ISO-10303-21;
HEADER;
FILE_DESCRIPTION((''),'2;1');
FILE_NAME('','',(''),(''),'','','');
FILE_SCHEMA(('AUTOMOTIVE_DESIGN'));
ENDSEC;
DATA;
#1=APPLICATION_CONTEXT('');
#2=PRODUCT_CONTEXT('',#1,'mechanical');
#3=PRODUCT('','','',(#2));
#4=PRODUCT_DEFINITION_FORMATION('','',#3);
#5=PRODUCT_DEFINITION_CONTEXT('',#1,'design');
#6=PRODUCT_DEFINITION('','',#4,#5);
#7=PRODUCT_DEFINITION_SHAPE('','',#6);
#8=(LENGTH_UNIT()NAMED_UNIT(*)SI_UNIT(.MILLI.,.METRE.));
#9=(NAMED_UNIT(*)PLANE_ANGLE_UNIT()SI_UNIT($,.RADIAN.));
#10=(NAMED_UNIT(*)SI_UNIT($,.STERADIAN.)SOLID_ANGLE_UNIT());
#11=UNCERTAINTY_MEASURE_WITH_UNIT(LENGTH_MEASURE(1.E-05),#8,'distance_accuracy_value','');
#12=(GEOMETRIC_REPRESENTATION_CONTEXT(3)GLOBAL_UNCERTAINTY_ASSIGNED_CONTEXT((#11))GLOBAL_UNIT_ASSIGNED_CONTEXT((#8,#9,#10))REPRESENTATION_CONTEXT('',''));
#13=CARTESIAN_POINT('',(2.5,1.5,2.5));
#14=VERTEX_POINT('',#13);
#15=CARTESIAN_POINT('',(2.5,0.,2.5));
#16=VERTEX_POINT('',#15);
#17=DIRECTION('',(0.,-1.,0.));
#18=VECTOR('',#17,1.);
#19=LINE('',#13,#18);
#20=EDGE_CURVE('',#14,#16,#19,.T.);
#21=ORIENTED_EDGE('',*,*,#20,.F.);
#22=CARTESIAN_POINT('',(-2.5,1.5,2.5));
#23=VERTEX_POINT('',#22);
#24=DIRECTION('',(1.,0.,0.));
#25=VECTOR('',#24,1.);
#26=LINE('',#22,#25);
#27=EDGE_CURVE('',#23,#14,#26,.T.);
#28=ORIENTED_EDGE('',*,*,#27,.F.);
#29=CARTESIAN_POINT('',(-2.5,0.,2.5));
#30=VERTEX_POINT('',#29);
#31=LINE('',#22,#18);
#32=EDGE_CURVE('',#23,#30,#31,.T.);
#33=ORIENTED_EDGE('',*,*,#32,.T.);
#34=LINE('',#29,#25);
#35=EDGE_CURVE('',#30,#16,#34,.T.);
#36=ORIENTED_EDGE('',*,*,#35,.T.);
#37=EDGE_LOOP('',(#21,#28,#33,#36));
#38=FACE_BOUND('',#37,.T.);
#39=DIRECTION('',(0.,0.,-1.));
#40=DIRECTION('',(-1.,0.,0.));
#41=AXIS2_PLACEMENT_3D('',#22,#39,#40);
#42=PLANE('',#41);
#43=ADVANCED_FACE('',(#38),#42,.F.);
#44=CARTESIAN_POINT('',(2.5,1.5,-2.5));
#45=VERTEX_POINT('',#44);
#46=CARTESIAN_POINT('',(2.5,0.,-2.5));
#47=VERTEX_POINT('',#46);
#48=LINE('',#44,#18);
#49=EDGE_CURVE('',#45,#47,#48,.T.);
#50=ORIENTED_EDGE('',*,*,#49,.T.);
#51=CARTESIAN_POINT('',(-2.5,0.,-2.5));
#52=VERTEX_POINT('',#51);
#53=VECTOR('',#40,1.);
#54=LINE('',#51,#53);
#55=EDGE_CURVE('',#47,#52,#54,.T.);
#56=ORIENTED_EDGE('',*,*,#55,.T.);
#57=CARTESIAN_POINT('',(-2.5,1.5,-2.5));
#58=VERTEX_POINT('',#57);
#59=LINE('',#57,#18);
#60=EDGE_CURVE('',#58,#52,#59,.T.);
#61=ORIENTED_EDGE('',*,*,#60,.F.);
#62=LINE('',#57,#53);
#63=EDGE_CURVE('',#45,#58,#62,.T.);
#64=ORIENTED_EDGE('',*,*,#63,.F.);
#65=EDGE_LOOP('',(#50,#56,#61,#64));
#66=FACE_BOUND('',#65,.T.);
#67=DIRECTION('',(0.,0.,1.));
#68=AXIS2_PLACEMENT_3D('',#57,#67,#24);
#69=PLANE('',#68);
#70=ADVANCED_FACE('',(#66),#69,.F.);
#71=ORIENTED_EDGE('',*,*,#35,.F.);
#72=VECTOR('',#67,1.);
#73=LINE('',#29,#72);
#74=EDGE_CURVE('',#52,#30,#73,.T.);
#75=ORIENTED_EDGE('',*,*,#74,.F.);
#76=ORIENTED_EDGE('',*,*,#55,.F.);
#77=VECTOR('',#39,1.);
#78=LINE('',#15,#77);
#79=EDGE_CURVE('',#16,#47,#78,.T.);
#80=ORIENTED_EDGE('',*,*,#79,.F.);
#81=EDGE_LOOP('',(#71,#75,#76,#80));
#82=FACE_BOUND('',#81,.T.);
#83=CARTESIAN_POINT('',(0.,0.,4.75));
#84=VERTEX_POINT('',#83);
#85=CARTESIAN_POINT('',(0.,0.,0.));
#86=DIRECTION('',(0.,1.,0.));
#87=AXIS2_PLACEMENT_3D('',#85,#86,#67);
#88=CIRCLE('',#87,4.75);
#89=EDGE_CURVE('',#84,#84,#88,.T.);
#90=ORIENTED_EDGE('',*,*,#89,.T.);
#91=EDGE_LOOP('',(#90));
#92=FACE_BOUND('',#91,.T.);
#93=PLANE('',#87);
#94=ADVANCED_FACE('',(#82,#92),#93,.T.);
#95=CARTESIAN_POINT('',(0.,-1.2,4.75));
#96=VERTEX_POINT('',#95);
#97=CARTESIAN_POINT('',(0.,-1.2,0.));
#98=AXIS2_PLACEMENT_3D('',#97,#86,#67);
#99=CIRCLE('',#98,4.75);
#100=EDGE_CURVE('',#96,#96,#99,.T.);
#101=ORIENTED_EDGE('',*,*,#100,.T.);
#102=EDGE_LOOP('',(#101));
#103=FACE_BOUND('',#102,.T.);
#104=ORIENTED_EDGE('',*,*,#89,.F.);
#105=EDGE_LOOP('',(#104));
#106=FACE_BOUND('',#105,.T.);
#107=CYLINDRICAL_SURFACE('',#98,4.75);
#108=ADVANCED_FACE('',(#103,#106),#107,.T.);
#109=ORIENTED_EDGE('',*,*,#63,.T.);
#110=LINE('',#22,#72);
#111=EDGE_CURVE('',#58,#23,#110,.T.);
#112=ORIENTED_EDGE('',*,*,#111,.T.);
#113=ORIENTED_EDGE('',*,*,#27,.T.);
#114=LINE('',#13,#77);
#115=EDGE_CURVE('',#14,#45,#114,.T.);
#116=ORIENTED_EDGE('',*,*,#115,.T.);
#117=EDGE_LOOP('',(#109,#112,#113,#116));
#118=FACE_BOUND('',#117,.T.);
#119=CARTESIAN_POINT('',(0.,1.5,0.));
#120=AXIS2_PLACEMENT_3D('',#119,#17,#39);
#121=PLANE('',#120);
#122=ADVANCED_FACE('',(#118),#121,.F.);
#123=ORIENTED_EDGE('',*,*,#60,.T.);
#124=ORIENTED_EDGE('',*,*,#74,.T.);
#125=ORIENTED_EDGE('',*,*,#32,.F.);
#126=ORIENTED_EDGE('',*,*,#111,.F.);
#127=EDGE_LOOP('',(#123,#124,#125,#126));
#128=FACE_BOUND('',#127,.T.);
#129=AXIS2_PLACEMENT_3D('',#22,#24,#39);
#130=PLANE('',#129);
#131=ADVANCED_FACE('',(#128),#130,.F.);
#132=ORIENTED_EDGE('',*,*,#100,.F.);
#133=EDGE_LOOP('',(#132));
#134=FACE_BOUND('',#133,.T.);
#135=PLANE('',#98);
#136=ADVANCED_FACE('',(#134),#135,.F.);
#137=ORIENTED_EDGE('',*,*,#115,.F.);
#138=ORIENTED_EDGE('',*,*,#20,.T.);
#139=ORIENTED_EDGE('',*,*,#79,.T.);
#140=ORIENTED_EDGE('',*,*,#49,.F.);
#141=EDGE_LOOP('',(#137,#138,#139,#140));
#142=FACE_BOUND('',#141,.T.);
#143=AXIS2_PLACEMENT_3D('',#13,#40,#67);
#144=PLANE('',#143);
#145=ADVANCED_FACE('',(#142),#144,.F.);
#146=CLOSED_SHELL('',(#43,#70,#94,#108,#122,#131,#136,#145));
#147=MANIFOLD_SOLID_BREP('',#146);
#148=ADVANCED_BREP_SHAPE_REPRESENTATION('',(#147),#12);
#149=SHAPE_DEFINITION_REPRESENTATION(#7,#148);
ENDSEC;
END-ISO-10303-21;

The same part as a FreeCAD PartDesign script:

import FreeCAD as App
import Part
import Sketcher

doc = App.newDocument("Part")
body = doc.addObject("PartDesign::Body", "Body")

# Sketch on XZ plane
sketch1 = doc.addObject("Sketcher::SketchObject", "Sketch")
body.addObject(sketch1)
sketch1.AttachmentSupport = (doc.XZ_Plane, [""])
sketch1.MapMode = "FlatFace"
sketch1.addGeometry(Part.Circle(App.Vector(0, 0, 0), App.Vector(0, 0, 1), 4.8), False)
sketch1.addConstraint(Sketcher.Constraint("Coincident", 0, 3, -1, 1))
sketch1.addConstraint(Sketcher.Constraint("Diameter", 0, 9.5))
pad1 = doc.addObject("PartDesign::Pad", "Pad")
body.addObject(pad1)
pad1.Profile = sketch1
pad1.Length = 1.2

# Sketch on XZ plane
sketch2 = doc.addObject("Sketcher::SketchObject", "Sketch001")
body.addObject(sketch2)
sketch2.AttachmentSupport = (doc.XZ_Plane, [""])
sketch2.MapMode = "FlatFace"
sketch2.addGeometry(Part.LineSegment(App.Vector(-2, -2, 0), App.Vector(-2, 2, 0)), False)
sketch2.addGeometry(Part.LineSegment(App.Vector(-2, 2, 0), App.Vector(2, 2, 0)), False)
sketch2.addGeometry(Part.LineSegment(App.Vector(2, 2, 0), App.Vector(2, -2, 0)), False)
sketch2.addGeometry(Part.LineSegment(App.Vector(2, -2, 0), App.Vector(-2, -2, 0)), False)
sketch2.addConstraint(Sketcher.Constraint("Coincident", 0, 2, 1, 1))
sketch2.addConstraint(Sketcher.Constraint("Coincident", 1, 2, 2, 1))
sketch2.addConstraint(Sketcher.Constraint("Coincident", 2, 2, 3, 1))
sketch2.addConstraint(Sketcher.Constraint("Coincident", 3, 2, 0, 1))
sketch2.addConstraint(Sketcher.Constraint("Vertical", 0))
sketch2.addConstraint(Sketcher.Constraint("Horizontal", 1))
sketch2.addConstraint(Sketcher.Constraint("Vertical", 2))
sketch2.addConstraint(Sketcher.Constraint("Horizontal", 3))
sketch2.addConstraint(Sketcher.Constraint("Symmetric", 0, 2, 2, 2, -1, 1))
sketch2.addConstraint(Sketcher.Constraint("Equal", 3, 0))
sketch2.addConstraint(Sketcher.Constraint("DistanceX", 1, 1, 1, 2, 5.0))
pad2 = doc.addObject("PartDesign::Pad", "Pad001")
body.addObject(pad2)
pad2.Profile = sketch2
pad2.Length = 1.5
pad2.Reversed = True

doc.recompute()
